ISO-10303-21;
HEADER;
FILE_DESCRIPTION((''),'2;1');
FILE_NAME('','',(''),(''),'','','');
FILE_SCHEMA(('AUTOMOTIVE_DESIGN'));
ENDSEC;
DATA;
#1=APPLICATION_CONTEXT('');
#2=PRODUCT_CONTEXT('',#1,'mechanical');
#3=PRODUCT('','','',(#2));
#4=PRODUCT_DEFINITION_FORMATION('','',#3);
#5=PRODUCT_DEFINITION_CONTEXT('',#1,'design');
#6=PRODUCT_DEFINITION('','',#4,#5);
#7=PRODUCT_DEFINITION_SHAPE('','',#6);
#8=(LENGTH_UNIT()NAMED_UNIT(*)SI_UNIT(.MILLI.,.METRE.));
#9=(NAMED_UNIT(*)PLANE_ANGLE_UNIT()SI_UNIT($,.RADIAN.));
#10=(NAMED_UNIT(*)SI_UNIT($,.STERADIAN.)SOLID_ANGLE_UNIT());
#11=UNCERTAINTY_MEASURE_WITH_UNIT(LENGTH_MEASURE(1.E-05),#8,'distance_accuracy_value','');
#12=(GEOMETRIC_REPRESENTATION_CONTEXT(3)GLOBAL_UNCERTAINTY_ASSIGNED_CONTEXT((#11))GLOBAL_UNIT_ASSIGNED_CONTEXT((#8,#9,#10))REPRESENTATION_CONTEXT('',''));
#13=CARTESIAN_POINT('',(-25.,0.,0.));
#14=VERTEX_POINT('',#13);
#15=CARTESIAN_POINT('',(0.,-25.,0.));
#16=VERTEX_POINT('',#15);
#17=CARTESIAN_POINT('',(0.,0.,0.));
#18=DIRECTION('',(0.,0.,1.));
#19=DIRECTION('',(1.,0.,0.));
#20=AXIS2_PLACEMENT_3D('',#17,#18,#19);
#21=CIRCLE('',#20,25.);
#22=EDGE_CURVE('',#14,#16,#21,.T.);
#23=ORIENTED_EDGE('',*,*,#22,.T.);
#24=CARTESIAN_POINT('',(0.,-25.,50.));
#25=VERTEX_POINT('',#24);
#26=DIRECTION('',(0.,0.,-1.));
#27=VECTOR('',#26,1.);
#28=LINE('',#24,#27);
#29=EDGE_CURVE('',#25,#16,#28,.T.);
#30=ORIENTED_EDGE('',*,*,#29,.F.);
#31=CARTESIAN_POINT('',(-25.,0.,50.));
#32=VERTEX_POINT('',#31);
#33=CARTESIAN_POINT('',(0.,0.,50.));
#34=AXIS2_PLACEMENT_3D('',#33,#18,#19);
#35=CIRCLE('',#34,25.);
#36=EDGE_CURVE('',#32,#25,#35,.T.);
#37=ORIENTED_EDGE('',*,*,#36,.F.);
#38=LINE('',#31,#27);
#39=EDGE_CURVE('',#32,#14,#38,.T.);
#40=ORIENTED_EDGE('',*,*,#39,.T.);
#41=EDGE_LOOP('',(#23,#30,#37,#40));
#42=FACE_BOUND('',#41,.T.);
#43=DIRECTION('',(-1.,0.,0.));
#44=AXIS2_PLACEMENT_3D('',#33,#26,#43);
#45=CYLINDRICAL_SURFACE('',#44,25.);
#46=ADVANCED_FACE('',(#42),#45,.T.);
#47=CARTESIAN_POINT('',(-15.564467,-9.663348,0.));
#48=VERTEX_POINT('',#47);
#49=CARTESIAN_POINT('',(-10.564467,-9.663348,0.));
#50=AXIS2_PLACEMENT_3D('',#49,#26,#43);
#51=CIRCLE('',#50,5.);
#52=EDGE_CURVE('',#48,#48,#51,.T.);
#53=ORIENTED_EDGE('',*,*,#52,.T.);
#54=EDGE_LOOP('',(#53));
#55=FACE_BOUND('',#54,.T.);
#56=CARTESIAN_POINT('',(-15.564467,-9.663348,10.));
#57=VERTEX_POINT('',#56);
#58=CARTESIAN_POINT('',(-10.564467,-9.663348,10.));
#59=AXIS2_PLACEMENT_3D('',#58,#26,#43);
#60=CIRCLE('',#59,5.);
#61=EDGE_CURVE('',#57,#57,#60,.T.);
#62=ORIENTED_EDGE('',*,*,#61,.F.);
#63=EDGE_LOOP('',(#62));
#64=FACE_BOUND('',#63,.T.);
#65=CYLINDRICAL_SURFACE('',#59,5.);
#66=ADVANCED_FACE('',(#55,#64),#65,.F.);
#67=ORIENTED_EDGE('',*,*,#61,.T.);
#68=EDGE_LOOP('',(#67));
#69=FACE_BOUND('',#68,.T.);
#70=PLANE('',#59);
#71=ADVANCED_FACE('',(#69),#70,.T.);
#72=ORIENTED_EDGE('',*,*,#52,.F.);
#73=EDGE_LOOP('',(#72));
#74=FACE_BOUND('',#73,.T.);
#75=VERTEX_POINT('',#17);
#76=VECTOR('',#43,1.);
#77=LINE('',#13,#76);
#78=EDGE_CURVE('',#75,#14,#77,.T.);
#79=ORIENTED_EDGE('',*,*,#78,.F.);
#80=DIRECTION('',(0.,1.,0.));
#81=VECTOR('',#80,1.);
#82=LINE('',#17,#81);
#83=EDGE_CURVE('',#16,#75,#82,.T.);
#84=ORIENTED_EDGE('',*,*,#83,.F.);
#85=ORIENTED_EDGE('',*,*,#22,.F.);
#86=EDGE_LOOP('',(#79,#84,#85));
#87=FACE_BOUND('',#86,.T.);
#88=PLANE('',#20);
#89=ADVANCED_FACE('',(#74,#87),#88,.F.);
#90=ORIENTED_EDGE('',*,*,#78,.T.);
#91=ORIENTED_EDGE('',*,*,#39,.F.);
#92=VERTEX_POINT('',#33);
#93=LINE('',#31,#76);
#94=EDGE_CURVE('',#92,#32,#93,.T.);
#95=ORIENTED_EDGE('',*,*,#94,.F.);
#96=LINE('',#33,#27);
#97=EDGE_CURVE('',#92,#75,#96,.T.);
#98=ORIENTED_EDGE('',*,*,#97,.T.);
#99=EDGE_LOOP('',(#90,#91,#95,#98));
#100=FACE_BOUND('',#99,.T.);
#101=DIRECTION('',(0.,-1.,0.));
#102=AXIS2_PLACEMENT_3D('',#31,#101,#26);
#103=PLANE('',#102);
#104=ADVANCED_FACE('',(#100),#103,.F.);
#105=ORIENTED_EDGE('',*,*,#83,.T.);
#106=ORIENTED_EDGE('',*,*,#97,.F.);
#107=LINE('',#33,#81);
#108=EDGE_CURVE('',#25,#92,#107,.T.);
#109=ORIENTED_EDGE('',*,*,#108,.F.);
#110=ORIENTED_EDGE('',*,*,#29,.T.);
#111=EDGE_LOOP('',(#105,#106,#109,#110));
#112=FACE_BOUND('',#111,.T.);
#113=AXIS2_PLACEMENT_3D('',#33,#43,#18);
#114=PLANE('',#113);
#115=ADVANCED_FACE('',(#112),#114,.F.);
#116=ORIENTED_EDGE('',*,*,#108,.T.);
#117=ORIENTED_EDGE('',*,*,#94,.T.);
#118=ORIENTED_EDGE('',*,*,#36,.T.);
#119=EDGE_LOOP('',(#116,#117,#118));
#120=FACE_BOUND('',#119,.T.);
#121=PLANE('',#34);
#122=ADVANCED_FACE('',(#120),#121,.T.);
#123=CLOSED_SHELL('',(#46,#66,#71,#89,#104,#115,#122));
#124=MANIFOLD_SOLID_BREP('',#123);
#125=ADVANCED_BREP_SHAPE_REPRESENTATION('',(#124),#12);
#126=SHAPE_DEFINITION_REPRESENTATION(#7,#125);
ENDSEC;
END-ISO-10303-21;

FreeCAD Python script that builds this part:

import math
import FreeCAD as App
import Part
import Sketcher
from FreeCAD import Vector
Q = App.Units.Quantity

doc = App.newDocument("Part")
body = doc.addObject("PartDesign::Body", "Body")

sketch1 = body.newObject("Sketcher::SketchObject", "Sketch")
sketch1.AttachmentSupport = (doc.getObject("XY_Plane"), [""])
sketch1.MapMode = "FlatFace"
sketch1.addGeometry([
    Part.LineSegment(Vector(0, -25, 0), Vector(0, 0, 0)),
    Part.LineSegment(Vector(0, 0, 0), Vector(-25, 0, 0)),
    Part.ArcOfCircle(Part.Circle(Vector(0, 0, 0), Vector(0, 0, 1), 25), math.radians(180), math.radians(270)),
], False)
sketch1.addConstraint([
    Sketcher.Constraint("Coincident", 0, 2, 1, 1),
    Sketcher.Constraint("Coincident", 1, 2, 2, 1),
    Sketcher.Constraint("Coincident", 2, 2, 0, 1),
    Sketcher.Constraint("Vertical", 0),
    Sketcher.Constraint("Horizontal", 1),
    Sketcher.Constraint("Coincident", 2, 3, -1, 1),
    Sketcher.Constraint("Coincident", 0, 2, -1, 1),
    Sketcher.Constraint("Radius", 2, Q("25 mm")),
])
pad1 = body.newObject("PartDesign::Pad", "Pad")
pad1.Profile = sketch1
pad1.Length = 50

sketch2 = body.newObject("Sketcher::SketchObject", "Sketch001")
sketch2.AttachmentSupport = (doc.getObject("XY_Plane"), [""])
sketch2.MapMode = "FlatFace"
sketch2.addGeometry(Part.Circle(Vector(-11, -10, 0), Vector(0, 0, 1), 5), False)
sketch2.addConstraint([
    Sketcher.Constraint("Diameter", 0, Q("10 mm")),
    Sketcher.Constraint("DistanceY", 0, 3, -1, 1, Q("9.663348 mm")),
    Sketcher.Constraint("DistanceX", 0, 3, -1, 1, Q("10.564467 mm")),
])
pocket1 = body.newObject("PartDesign::Pocket", "Pocket")
pocket1.Profile = sketch2
pocket1.Length = 10
pocket1.Reversed = True

doc.recompute()
